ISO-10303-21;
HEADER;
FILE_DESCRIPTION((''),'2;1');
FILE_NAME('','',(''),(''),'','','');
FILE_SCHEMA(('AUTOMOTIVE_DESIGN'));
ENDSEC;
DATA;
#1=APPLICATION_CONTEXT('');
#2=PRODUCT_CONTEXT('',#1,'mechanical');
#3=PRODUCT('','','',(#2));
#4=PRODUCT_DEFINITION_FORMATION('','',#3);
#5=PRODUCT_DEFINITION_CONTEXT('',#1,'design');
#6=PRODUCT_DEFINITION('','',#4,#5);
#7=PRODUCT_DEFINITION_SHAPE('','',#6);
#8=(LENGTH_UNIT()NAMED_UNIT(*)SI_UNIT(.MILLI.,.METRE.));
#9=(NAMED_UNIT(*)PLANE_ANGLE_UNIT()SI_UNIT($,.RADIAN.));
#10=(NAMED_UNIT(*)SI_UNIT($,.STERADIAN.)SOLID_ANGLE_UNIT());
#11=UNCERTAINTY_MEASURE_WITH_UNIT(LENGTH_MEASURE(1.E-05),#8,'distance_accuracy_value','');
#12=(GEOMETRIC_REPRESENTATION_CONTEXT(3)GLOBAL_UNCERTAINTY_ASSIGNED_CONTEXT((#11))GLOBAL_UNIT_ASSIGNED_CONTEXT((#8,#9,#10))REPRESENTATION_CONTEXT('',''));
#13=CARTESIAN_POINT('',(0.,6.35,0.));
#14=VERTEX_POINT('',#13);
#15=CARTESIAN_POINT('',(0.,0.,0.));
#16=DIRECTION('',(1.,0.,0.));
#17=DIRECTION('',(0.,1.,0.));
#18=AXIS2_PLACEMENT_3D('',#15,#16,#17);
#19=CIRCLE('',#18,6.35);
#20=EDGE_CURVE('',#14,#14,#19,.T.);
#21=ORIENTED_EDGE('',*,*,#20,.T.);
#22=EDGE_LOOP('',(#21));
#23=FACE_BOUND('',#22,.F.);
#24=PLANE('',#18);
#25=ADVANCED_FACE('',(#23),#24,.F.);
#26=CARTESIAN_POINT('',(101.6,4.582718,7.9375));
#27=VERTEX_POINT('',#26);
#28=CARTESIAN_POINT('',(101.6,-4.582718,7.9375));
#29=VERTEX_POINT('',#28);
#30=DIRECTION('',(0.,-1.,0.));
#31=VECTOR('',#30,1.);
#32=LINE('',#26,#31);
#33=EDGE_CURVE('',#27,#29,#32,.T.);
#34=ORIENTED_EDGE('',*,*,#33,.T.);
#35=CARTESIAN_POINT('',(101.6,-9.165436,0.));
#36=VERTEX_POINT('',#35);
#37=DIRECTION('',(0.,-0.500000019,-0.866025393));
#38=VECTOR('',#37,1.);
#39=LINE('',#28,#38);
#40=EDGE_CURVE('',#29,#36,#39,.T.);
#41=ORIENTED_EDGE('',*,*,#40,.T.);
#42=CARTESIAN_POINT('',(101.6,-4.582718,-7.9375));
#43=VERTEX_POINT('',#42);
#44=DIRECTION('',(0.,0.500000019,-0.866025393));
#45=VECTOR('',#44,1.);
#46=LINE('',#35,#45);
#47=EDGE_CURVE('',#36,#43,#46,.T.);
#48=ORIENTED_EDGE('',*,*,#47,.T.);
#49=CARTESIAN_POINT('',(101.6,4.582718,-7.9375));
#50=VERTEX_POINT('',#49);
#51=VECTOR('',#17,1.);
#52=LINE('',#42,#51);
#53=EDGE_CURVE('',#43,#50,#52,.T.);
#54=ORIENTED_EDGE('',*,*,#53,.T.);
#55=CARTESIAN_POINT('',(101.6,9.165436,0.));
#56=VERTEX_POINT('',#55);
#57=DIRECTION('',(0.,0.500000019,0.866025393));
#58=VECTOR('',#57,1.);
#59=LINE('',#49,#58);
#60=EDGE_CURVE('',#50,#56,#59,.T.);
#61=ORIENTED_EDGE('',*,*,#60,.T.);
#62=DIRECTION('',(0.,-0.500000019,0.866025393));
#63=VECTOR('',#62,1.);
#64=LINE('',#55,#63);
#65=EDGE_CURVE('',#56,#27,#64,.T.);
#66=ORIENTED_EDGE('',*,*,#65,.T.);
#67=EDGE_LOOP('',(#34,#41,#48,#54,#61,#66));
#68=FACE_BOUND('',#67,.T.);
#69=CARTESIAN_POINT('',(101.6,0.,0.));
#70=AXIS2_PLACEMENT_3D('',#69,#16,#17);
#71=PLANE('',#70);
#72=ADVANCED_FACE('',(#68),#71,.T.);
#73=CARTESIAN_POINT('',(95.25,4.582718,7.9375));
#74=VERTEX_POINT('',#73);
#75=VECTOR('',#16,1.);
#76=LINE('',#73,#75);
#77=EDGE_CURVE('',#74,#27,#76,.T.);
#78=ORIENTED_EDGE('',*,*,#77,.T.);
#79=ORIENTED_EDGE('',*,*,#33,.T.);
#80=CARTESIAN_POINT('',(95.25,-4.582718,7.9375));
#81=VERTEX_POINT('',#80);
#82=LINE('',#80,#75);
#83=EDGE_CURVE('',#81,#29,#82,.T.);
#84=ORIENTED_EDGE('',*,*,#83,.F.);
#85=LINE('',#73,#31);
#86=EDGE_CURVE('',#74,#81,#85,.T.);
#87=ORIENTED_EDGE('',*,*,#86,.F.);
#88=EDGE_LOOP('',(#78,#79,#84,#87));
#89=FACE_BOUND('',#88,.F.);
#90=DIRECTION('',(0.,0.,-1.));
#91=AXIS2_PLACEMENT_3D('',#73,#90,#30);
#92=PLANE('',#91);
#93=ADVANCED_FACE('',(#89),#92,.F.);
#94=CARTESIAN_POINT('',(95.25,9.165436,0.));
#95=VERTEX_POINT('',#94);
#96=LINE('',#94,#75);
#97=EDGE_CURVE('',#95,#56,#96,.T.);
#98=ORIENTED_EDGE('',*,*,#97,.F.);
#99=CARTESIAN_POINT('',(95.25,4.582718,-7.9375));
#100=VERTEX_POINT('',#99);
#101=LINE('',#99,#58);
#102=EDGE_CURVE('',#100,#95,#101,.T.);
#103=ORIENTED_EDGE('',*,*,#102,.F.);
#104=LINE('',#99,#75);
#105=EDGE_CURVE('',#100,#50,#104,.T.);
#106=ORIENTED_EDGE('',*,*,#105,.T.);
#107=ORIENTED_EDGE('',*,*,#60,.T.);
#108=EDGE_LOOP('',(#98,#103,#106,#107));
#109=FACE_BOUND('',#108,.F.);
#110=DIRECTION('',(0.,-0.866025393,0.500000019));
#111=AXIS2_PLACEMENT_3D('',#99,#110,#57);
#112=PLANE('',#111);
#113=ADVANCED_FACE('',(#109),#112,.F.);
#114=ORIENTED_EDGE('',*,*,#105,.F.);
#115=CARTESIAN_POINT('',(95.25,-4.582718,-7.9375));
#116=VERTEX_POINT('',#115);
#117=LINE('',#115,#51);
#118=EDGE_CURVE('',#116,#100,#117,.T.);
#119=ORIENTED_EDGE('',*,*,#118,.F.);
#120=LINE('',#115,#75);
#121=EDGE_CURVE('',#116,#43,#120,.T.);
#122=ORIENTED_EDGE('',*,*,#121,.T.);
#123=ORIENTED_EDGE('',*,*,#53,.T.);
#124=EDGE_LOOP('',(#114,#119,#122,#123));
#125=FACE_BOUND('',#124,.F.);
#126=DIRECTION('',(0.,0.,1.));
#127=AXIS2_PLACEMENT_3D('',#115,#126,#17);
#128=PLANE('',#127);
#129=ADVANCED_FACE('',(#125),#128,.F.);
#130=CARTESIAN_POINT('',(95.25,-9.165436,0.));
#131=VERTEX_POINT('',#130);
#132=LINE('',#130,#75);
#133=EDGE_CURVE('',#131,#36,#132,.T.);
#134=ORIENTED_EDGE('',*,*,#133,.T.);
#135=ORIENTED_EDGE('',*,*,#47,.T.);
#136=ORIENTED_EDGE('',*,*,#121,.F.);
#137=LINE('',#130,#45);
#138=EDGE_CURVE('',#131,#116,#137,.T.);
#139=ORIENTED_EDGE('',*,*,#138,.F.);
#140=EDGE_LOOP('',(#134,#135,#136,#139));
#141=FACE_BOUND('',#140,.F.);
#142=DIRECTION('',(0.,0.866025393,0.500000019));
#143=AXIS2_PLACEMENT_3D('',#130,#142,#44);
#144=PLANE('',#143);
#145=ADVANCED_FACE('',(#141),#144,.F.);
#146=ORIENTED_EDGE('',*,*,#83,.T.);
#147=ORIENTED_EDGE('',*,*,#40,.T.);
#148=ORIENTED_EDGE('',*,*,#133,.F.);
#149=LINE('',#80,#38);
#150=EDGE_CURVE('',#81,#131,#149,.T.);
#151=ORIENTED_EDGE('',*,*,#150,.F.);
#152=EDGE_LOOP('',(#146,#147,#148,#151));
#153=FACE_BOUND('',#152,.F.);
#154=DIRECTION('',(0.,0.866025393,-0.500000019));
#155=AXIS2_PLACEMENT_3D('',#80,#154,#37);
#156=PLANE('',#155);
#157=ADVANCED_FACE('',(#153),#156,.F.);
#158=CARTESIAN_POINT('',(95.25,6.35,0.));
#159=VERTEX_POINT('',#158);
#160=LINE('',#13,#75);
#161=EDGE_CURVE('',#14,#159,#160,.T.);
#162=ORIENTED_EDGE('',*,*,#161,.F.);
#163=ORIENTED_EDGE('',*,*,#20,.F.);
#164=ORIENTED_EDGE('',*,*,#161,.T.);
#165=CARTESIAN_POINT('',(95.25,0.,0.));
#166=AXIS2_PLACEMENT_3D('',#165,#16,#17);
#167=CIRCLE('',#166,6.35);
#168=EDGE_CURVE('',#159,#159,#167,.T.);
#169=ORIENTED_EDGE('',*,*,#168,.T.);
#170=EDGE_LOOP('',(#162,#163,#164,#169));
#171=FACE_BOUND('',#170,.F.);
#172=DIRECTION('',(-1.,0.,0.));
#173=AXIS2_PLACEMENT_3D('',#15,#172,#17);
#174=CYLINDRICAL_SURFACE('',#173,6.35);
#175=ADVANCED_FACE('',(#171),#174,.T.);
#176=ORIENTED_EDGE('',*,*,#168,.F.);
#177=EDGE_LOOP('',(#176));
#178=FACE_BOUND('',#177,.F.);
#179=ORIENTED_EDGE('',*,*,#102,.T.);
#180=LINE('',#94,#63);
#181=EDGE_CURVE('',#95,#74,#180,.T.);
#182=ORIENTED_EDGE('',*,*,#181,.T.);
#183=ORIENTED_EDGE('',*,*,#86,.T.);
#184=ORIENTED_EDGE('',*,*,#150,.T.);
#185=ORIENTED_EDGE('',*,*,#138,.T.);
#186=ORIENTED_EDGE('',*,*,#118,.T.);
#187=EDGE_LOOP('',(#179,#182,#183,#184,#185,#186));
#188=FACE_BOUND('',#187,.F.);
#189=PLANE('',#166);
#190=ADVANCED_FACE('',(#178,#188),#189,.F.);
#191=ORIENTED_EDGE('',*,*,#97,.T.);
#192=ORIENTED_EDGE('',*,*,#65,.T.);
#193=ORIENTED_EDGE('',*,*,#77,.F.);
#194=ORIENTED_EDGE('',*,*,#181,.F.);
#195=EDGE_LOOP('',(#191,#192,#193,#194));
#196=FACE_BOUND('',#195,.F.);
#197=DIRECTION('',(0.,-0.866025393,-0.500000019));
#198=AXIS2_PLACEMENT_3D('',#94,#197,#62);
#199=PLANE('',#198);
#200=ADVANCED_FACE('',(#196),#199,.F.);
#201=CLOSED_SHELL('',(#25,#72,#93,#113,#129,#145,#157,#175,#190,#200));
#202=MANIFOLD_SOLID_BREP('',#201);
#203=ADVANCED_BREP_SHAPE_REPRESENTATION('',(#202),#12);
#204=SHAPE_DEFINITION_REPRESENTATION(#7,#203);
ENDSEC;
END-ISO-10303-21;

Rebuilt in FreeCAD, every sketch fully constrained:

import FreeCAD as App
import Part
import Sketcher

V = App.Vector
Q = App.Units.Quantity

doc = App.newDocument("Part")
body = doc.addObject("PartDesign::Body", "Body")

sketch1 = body.newObject("Sketcher::SketchObject", "Sketch")
sketch1.AttachmentSupport = (doc.getObject("YZ_Plane"), [""])
sketch1.MapMode = "FlatFace"
sketch1.addGeometry(Part.Circle(V(0, 0, 0), V(0, 0, 1), 6.35), False)
sketch1.addConstraint([
    Sketcher.Constraint("Coincident", 0, 3, -1, 1),
    Sketcher.Constraint("Diameter", 0, Q("0.5 in")),
])
pad1 = body.newObject("PartDesign::Pad", "Pad")
pad1.Profile = sketch1
pad1.Length = Q("3.75 in")

sketch2 = body.newObject("Sketcher::SketchObject", "Sketch001")
sketch2.AttachmentSupport = (doc.getObject("YZ_Plane"), [""])
sketch2.MapMode = "FlatFace"
sketch2.AttachmentOffset = App.Placement(V(0, 0, 3.75 * 25.4), App.Rotation())
sketch2.addGeometry([
    Part.LineSegment(V(4.582718, 7.9375, 0), V(-4.582718, 7.9375, 0)),
    Part.LineSegment(V(-4.582718, 7.9375, 0), V(-9.165436, 0, 0)),
    Part.LineSegment(V(-9.165436, 0, 0), V(-4.582718, -7.9375, 0)),
    Part.LineSegment(V(-4.582718, -7.9375, 0), V(4.582718, -7.9375, 0)),
    Part.LineSegment(V(4.582718, -7.9375, 0), V(9.165436, 0, 0)),
    Part.LineSegment(V(9.165436, 0, 0), V(4.582718, 7.9375, 0)),
], False)
sketch2.addConstraint([
    Sketcher.Constraint("Coincident", 0, 2, 1, 1),
    Sketcher.Constraint("Coincident", 1, 2, 2, 1),
    Sketcher.Constraint("Coincident", 2, 2, 3, 1),
    Sketcher.Constraint("Coincident", 3, 2, 4, 1),
    Sketcher.Constraint("Coincident", 4, 2, 5, 1),
    Sketcher.Constraint("Coincident", 5, 2, 0, 1),
    Sketcher.Constraint("Horizontal", 0),
    Sketcher.Constraint("Horizontal", 3),
    Sketcher.Constraint("Symmetric", 0, 2, 3, 2, -1, 1),
    Sketcher.Constraint("Symmetric", 1, 2, 4, 2, -1, 1),
    Sketcher.Constraint("PointOnObject", 1, 2, -1),
    Sketcher.Constraint("Parallel", 2, 5),
    Sketcher.Constraint("Vertical", 0, 2, 2, 2),
    Sketcher.Constraint("Angle", 1, Q("-120.000001 deg")),
    Sketcher.Constraint("DistanceY", -1, 1, 0, 2, Q("0.3125 in")),
    Sketcher.Constraint("DistanceX", 0, 2, 0, 1, Q("9.165436 mm")),
])
pad2 = body.newObject("PartDesign::Pad", "Pad001")
pad2.Profile = sketch2
pad2.Length = Q("0.25 in")

doc.recompute()
